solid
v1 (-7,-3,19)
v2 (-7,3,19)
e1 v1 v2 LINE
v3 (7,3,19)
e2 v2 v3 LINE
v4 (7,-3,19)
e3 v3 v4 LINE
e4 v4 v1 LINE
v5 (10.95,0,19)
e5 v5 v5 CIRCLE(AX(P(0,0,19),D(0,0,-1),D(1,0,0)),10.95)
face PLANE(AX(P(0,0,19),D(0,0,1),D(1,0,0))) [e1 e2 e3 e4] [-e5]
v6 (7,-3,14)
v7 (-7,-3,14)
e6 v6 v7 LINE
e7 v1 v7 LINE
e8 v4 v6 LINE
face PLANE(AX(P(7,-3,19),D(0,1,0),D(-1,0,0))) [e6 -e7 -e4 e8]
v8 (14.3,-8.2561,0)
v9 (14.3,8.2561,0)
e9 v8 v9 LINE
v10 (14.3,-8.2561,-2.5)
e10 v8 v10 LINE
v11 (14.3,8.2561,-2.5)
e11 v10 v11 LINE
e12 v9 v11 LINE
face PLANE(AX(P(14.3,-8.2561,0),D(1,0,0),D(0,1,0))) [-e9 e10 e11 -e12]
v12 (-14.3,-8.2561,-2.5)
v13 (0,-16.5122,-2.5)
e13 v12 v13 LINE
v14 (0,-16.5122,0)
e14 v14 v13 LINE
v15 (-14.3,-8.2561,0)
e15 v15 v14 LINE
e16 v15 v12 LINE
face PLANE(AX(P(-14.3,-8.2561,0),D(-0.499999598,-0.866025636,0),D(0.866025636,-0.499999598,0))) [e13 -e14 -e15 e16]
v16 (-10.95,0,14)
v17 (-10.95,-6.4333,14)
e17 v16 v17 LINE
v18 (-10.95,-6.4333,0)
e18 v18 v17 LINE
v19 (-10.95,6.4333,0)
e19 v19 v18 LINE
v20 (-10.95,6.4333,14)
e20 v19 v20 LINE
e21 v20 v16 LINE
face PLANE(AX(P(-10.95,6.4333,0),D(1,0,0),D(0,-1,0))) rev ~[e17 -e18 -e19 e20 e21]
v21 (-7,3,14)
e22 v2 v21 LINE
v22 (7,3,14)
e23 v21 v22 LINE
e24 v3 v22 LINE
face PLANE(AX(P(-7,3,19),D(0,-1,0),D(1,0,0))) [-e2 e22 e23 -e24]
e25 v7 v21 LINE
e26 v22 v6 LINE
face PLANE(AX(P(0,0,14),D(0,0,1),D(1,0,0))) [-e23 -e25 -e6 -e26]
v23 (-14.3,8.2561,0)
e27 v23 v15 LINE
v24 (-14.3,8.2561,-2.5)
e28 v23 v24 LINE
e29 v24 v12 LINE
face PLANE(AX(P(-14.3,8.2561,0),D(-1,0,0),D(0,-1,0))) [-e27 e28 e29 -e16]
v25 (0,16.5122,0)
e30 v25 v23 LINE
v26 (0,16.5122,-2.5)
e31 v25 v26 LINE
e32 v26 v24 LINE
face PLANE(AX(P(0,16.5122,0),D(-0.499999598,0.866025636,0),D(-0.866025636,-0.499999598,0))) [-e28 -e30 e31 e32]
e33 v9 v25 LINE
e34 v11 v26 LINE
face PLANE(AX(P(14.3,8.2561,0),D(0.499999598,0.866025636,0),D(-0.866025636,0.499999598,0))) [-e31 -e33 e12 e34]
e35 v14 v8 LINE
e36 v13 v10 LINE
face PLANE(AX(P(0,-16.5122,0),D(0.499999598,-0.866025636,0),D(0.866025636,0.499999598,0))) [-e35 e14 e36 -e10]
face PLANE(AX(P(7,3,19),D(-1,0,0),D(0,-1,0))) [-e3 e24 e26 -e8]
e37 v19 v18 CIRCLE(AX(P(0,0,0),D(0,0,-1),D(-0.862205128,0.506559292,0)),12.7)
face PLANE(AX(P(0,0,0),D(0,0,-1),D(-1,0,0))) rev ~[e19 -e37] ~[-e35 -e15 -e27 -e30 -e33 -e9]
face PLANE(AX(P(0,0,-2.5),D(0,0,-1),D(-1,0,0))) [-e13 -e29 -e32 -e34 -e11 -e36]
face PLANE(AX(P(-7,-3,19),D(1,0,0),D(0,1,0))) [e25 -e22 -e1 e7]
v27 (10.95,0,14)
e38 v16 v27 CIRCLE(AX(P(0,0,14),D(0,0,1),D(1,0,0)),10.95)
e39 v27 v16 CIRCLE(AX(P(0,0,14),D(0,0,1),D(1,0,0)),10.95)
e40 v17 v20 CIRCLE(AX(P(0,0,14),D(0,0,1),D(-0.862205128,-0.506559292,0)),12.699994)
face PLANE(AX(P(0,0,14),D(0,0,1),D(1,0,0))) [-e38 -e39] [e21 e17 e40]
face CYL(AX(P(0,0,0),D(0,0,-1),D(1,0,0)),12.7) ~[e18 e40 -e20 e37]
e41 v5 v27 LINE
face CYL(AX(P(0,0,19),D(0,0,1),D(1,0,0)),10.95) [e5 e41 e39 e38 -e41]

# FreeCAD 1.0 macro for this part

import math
import FreeCAD as App
import Part
import Sketcher
Q = App.Units.Quantity

doc = App.newDocument("Part")
body = doc.addObject("PartDesign::Body", "Body")

sketch1 = body.newObject("Sketcher::SketchObject", "Sketch")
sketch1.AttachmentSupport = (doc.getObject("XY_Plane"), [""])
sketch1.MapMode = "FlatFace"
sketch1.addGeometry([
    Part.ArcOfCircle(Part.Circle(App.Vector(0, 0, 0), App.Vector(0, 0, 1), 13), math.radians(-150), math.radians(150)),
    Part.LineSegment(App.Vector(-11, -6, 0), App.Vector(-11, 6, 0)),
], False)
sketch1.addConstraint([
    Sketcher.Constraint("Coincident", 0, 1, 1, 1),
    Sketcher.Constraint("Coincident", 1, 2, 0, 2),
    Sketcher.Constraint("Vertical", 1),
    Sketcher.Constraint("Coincident", 0, 3, -1, 1),
    Sketcher.Constraint("Radius", 0, Q("12.7 mm")),
    Sketcher.Constraint("DistanceX", 0, 1, -1, 1, Q("10.95 mm")),
])
pad1 = body.newObject("PartDesign::Pad", "Pad")
pad1.Profile = sketch1
pad1.Length = 19

sketch2 = body.newObject("Sketcher::SketchObject", "Sketch001")
sketch2.AttachmentSupport = (doc.getObject("XY_Plane"), [""])
sketch2.MapMode = "FlatFace"
sketch2.addGeometry([
    Part.LineSegment(App.Vector(-14, 8, 0), App.Vector(0, 17, 0)),
    Part.LineSegment(App.Vector(0, 17, 0), App.Vector(14, 8, 0)),
    Part.LineSegment(App.Vector(14, 8, 0), App.Vector(14, -8, 0)),
    Part.LineSegment(App.Vector(14, -8, 0), App.Vector(0, -17, 0)),
    Part.LineSegment(App.Vector(0, -17, 0), App.Vector(-14, -8, 0)),
    Part.LineSegment(App.Vector(-14, -8, 0), App.Vector(-14, 8, 0)),
], False)
sketch2.addConstraint([
    Sketcher.Constraint("Coincident", 0, 2, 1, 1),
    Sketcher.Constraint("Coincident", 1, 2, 2, 1),
    Sketcher.Constraint("Coincident", 2, 2, 3, 1),
    Sketcher.Constraint("Coincident", 3, 2, 4, 1),
    Sketcher.Constraint("Coincident", 4, 2, 5, 1),
    Sketcher.Constraint("Coincident", 5, 2, 0, 1),
    Sketcher.Constraint("Vertical", 2),
    Sketcher.Constraint("Vertical", 5),
    Sketcher.Constraint("Symmetric", 0, 2, 3, 2, -1, 1),
    Sketcher.Constraint("Symmetric", 1, 2, 4, 2, -1, 1),
    Sketcher.Constraint("PointOnObject", 0, 2, -2),
    Sketcher.Constraint("Parallel", 0, 3),
    Sketcher.Constraint("Horizontal", 2, 2, 4, 2),
    Sketcher.Constraint("DistanceX", 4, 2, 2, 2, Q("28.6 mm")),
    Sketcher.Constraint("Angle", 0, Q("30 deg")),
    Sketcher.Constraint("DistanceY", 2, 2, 2, 1, Q("16.5122 mm")),
])
pad2 = body.newObject("PartDesign::Pad", "Pad001")
pad2.Profile = sketch2
pad2.Length = 2.5
pad2.Reversed = True

sketch3 = body.newObject("Sketcher::SketchObject", "Sketch002")
sketch3.AttachmentSupport = (doc.getObject("XY_Plane"), [""])
sketch3.MapMode = "FlatFace"
sketch3.AttachmentOffset = App.Placement(App.Vector(0, 0, 19), App.Rotation())
sketch3.addGeometry([
    Part.LineSegment(App.Vector(-11, 6, 0), App.Vector(-11, 0, 0)),
    Part.LineSegment(App.Vector(-11, 0, 0), App.Vector(-11, -6, 0)),
    Part.ArcOfCircle(Part.Circle(App.Vector(0, 0, 0), App.Vector(0, 0, 1), 13), math.radians(-150), math.radians(150)),
    Part.Circle(App.Vector(0, 0, 0), App.Vector(0, 0, 1), 11),
], False)
sketch3.addConstraint([
    Sketcher.Constraint("Coincident", 0, 2, 1, 1),
    Sketcher.Constraint("Coincident", 1, 2, 2, 1),
    Sketcher.Constraint("Coincident", 2, 2, 0, 1),
    Sketcher.Constraint("Vertical", 0),
    Sketcher.Constraint("Vertical", 1),
    Sketcher.Constraint("Coincident", 2, 3, -1, 1),
    Sketcher.Constraint("Coincident", 3, 3, -1, 1),
    Sketcher.Constraint("PointOnObject", 0, 2, -1),
    Sketcher.Constraint("Diameter", 3, Q("21.9 mm")),
    Sketcher.Constraint("Radius", 2, Q("12.7 mm")),
    Sketcher.Constraint("DistanceX", 0, 2, -1, 1, Q("10.95 mm")),
])
pocket1 = body.newObject("PartDesign::Pocket", "Pocket")
pocket1.Profile = sketch3
pocket1.Length = 5

sketch4 = body.newObject("Sketcher::SketchObject", "Sketch003")
sketch4.AttachmentSupport = (doc.getObject("XY_Plane"), [""])
sketch4.MapMode = "FlatFace"
sketch4.AttachmentOffset = App.Placement(App.Vector(0, 0, 19), App.Rotation())
sketch4.addGeometry([
    Part.LineSegment(App.Vector(7, 3, 0), App.Vector(-7, 3, 0)),
    Part.LineSegment(App.Vector(-7, 3, 0), App.Vector(-7, -3, 0)),
    Part.LineSegment(App.Vector(-7, -3, 0), App.Vector(7, -3, 0)),
    Part.LineSegment(App.Vector(7, -3, 0), App.Vector(7, 3, 0)),
], False)
sketch4.addConstraint([
    Sketcher.Constraint("Coincident", 0, 2, 1, 1),
    Sketcher.Constraint("Coincident", 1, 2, 2, 1),
    Sketcher.Constraint("Coincident", 2, 2, 3, 1),
    Sketcher.Constraint("Coincident", 3, 2, 0, 1),
    Sketcher.Constraint("Horizontal", 0),
    Sketcher.Constraint("Vertical", 1),
    Sketcher.Constraint("Horizontal", 2),
    Sketcher.Constraint("Vertical", 3),
    Sketcher.Constraint("Symmetric", 0, 2, 2, 2, -1, 1),
    Sketcher.Constraint("DistanceX", 0, 2, 0, 1, Q("14 mm")),
    Sketcher.Constraint("DistanceY", 1, 2, 1, 1, Q("6 mm")),
])
pocket2 = body.newObject("PartDesign::Pocket", "Pocket001")
pocket2.Profile = sketch4
pocket2.Length = 5

doc.recompute()
